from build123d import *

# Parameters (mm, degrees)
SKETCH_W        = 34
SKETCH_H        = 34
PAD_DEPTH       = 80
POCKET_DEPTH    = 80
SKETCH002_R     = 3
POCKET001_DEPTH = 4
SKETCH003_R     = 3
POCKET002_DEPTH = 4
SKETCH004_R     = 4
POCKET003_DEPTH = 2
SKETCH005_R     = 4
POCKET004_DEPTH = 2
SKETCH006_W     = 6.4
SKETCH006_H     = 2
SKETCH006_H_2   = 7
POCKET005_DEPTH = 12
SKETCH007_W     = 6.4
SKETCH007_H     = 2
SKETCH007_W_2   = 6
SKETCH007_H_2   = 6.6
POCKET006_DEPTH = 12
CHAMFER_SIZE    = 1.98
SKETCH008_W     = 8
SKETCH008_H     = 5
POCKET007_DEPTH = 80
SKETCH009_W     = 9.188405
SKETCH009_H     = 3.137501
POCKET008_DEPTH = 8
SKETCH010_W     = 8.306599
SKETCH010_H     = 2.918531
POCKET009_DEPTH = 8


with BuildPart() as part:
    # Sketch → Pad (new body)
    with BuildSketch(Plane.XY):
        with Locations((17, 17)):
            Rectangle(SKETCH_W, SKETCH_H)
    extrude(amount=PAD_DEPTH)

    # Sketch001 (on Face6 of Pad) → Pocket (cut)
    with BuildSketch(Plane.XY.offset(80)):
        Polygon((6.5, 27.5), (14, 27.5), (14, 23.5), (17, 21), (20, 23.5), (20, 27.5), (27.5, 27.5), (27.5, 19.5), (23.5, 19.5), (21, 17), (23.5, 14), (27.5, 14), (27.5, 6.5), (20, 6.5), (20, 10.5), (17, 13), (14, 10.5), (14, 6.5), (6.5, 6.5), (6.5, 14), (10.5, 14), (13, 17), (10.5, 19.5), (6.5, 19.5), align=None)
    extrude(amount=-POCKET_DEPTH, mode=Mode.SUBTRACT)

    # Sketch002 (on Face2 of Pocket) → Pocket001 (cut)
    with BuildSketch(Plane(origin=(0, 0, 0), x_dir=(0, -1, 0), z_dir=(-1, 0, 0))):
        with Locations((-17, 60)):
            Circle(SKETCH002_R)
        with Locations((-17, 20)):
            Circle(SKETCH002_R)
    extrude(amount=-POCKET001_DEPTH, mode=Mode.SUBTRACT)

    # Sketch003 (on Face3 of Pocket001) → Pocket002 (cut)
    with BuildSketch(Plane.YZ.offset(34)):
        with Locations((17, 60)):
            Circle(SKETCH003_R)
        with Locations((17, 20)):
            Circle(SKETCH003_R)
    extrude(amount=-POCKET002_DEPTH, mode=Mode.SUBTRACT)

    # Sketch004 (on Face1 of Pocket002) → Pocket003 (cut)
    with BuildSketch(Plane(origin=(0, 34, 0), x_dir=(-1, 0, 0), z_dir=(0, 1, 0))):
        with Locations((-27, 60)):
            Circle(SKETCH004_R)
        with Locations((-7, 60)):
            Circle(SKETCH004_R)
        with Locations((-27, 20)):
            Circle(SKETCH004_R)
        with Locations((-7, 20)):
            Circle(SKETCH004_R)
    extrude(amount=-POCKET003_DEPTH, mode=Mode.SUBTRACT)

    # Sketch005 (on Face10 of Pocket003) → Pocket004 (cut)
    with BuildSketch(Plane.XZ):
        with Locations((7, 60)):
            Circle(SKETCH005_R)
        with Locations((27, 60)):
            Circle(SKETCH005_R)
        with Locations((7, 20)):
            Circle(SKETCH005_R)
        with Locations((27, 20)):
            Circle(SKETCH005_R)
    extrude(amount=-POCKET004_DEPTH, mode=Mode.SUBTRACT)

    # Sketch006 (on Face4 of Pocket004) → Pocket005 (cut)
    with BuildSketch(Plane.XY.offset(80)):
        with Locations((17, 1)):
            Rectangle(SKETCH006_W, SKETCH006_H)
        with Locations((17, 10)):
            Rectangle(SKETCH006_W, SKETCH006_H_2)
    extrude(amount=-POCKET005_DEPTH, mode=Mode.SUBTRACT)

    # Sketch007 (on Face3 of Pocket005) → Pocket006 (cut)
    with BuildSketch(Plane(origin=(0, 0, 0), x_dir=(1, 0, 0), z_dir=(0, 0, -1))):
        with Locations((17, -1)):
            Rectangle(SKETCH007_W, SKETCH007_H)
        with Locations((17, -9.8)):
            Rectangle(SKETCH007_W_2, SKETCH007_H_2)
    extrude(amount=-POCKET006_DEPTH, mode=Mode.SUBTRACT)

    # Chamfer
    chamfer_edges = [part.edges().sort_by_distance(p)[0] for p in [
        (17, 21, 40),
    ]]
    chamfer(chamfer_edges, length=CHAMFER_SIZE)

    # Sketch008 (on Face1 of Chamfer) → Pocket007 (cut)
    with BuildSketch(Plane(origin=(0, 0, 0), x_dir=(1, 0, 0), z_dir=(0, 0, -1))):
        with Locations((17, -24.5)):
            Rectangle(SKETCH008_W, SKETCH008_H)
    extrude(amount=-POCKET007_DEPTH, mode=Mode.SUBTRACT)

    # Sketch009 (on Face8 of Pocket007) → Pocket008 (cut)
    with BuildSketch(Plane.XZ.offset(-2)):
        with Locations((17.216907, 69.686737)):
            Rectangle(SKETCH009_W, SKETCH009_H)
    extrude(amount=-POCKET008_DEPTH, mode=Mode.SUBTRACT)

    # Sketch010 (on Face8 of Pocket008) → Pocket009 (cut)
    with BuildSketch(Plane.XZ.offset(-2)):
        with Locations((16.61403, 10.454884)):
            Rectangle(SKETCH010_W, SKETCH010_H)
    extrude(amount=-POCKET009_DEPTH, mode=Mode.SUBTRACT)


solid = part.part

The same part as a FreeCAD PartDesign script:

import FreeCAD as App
import Part
import Sketcher
from FreeCAD import Vector
Q = App.Units.Quantity


def edges_at(feature, points):
    """Names of the edges that pass closest to the given points."""
    edges = feature.Shape.Edges
    near = lambda p: min(range(len(edges)), key=lambda i: edges[i].distToShape(Part.Vertex(*p))[0])
    return sorted({f"Edge{near(p) + 1}" for p in points})


def add_polygon(sketch, points):
    """Adds a closed chain of lines whose ends are joined by coincident constraints."""
    first, n = sketch.GeometryCount, len(points)
    for a, b in zip(points, points[1:] + points[:1]):
        sketch.addGeometry(Part.LineSegment(App.Vector(*a, 0), App.Vector(*b, 0)), False)
    for i in range(n):
        sketch.addConstraint(Sketcher.Constraint("Coincident", first + i, 2, first + (i + 1) % n, 1))

doc = App.newDocument("Part")
params = doc.addObject("Spreadsheet::Sheet", "Params")
for row, (alias, value) in enumerate([
    ("sketch1_width", "34 mm"),
    ("pad1_length", "80 mm"),
    ("sketch2_width", "4 mm"),
    ("sketch2_height", "8 mm"),
    ("sketch2_width2", "7.5 mm"),
    ("pocket1_length", "80 mm"),
    ("sketch3_diameter", "6 mm"),
    ("pocket2_length", "4 mm"),
    ("sketch4_diameter", "6 mm"),
    ("pocket3_length", "4 mm"),
    ("sketch5_diameter", "8 mm"),
    ("pocket4_length", "2 mm"),
    ("sketch6_diameter", "8 mm"),
    ("pocket5_length", "2 mm"),
    ("sketch7_height", "2 mm"),
    ("sketch7_height2", "7 mm"),
    ("sketch7_width", "6.4 mm"),
    ("pocket6_length", "12 mm"),
    ("sketch8_width", "6 mm"),
    ("sketch8_height", "2 mm"),
    ("sketch8_width2", "6.4 mm"),
    ("sketch8_height2", "6.6 mm"),
    ("pocket7_length", "12 mm"),
    ("chamfer_size", "1.98 mm"),
    ("sketch9_width", "8 mm"),
    ("sketch9_height", "5 mm"),
    ("pocket8_length", "80 mm"),
    ("pocket9_length", "8 mm"),
    ("pocket10_length", "8 mm"),
], start=1):
    params.set(f"A{row}", alias)
    params.set(f"B{row}", "=" + value)
    params.setAlias(f"B{row}", alias)

body = doc.addObject("PartDesign::Body", "Body")

sketch1 = doc.addObject("Sketcher::SketchObject", "Sketch")
body.addObject(sketch1)
sketch1.AttachmentSupport = (doc.XY_Plane, [""])
sketch1.MapMode = "FlatFace"
add_polygon(sketch1, [(0, 34), (0, 0), (34, 0), (34, 34)])
sketch1.addConstraint(Sketcher.Constraint("Vertical", 0))
sketch1.addConstraint(Sketcher.Constraint("Horizontal", 1))
sketch1.addConstraint(Sketcher.Constraint("Vertical", 2))
sketch1.addConstraint(Sketcher.Constraint("Horizontal", 3))
sketch1.addConstraint(Sketcher.Constraint("Coincident", 0, 2, -1, 1))
sketch1.addConstraint(Sketcher.Constraint("Equal", 3, 0))
sketch1.addConstraint(Sketcher.Constraint("DistanceX", 1, 1, 1, 2, Q("34 mm")))
sketch1.setExpression("Constraints[10]", "Params.sketch1_width")
pad1 = doc.addObject("PartDesign::Pad", "Pad")
body.addObject(pad1)
pad1.Profile = sketch1
pad1.setExpression("Length", "Params.pad1_length")

sketch2 = doc.addObject("Sketcher::SketchObject", "Sketch001")
body.addObject(sketch2)
sketch2.AttachmentSupport = (doc.XY_Plane, [""])
sketch2.MapMode = "FlatFace"
sketch2.AttachmentOffset = App.Placement(Vector(0, 0, 80), App.Rotation())
add_polygon(sketch2, [(14, 27.5), (6.5, 27.5), (6.5, 19.5), (10.5, 19.5), (13, 17), (10.5, 14), (6.5, 14), (6.5, 6.5), (14, 6.5), (14, 10.5), (17, 13), (20, 10.5), (20, 6.5), (27.5, 6.5), (27.5, 14), (23.5, 14), (21, 17), (23.5, 19.5), (27.5, 19.5), (27.5, 27.5), (20, 27.5), (20, 23.5), (17, 21), (14, 23.5)])
sketch2.addConstraint(Sketcher.Constraint("Horizontal", 0))
sketch2.addConstraint(Sketcher.Constraint("Vertical", 1))
sketch2.addConstraint(Sketcher.Constraint("Horizontal", 2))
sketch2.addConstraint(Sketcher.Constraint("Horizontal", 5))
sketch2.addConstraint(Sketcher.Constraint("Vertical", 6))
sketch2.addConstraint(Sketcher.Constraint("Horizontal", 7))
sketch2.addConstraint(Sketcher.Constraint("Vertical", 8))
sketch2.addConstraint(Sketcher.Constraint("Vertical", 11))
sketch2.addConstraint(Sketcher.Constraint("Horizontal", 12))
sketch2.addConstraint(Sketcher.Constraint("Vertical", 13))
sketch2.addConstraint(Sketcher.Constraint("Horizontal", 14))
sketch2.addConstraint(Sketcher.Constraint("Horizontal", 17))
sketch2.addConstraint(Sketcher.Constraint("Vertical", 18))
sketch2.addConstraint(Sketcher.Constraint("Horizontal", 19))
sketch2.addConstraint(Sketcher.Constraint("Vertical", 20))
sketch2.addConstraint(Sketcher.Constraint("Vertical", 23))
sketch2.addConstraint(Sketcher.Constraint("Perpendicular", 4, 10))
sketch2.addConstraint(Sketcher.Constraint("Perpendicular", 9, 15))
sketch2.addConstraint(Sketcher.Constraint("Perpendicular", 3, 16))
sketch2.addConstraint(Sketcher.Constraint("Perpendicular", 15, 21))
sketch2.addConstraint(Sketcher.Constraint("Parallel", 10, 22))
sketch2.addConstraint(Sketcher.Constraint("Horizontal", 8, 2, 10, 2))
sketch2.addConstraint(Sketcher.Constraint("Horizontal", 7, 2, 11, 2))
sketch2.addConstraint(Sketcher.Constraint("Horizontal", 5, 2, 13, 2))
sketch2.addConstraint(Sketcher.Constraint("Horizontal", 3, 2, 15, 2))
sketch2.addConstraint(Sketcher.Constraint("Horizontal", 2, 2, 16, 2))
sketch2.addConstraint(Sketcher.Constraint("Horizontal", 0, 2, 18, 2))
sketch2.addConstraint(Sketcher.Constraint("Horizontal", 20, 2, 22, 2))
sketch2.addConstraint(Sketcher.Constraint("Vertical", 2, 2, 4, 2))
sketch2.addConstraint(Sketcher.Constraint("Vertical", 1, 2, 5, 2))
sketch2.addConstraint(Sketcher.Constraint("Vertical", 14, 2, 16, 2))
sketch2.addConstraint(Sketcher.Constraint("Vertical", 13, 2, 17, 2))
sketch2.addConstraint(Sketcher.Constraint("Vertical", 11, 2, 19, 2))
sketch2.addConstraint(Sketcher.Constraint("Vertical", 9, 2, 21, 2))
sketch2.addConstraint(Sketcher.Constraint("Vertical", 8, 2, 22, 2))
sketch2.addConstraint(Sketcher.Constraint("Equal", 7, 12))
sketch2.addConstraint(Sketcher.Constraint("Equal", 5, 14))
sketch2.addConstraint(Sketcher.Constraint("Equal", 19, 6))
sketch2.addConstraint(Sketcher.Constraint("Equal", 17, 8))
sketch2.addConstraint(Sketcher.Constraint("Equal", 11, 20))
sketch2.addConstraint(Sketcher.Constraint("Equal", 4, 9))
sketch2.addConstraint(Sketcher.Constraint("DistanceX", 2, 1, 2, 2, Q("4 mm")))
sketch2.addConstraint(Sketcher.Constraint("DistanceY", 1, 2, 1, 1, Q("8 mm")))
sketch2.addConstraint(Sketcher.Constraint("DistanceX", 0, 2, 0, 1, Q("7.5 mm")))
sketch2.addConstraint(Sketcher.Constraint("DistanceX", -1, 1, 3, 2, Q("13 mm")))
sketch2.addConstraint(Sketcher.Constraint("DistanceY", -1, 1, 3, 2, Q("17 mm")))
sketch2.addConstraint(Sketcher.Constraint("DistanceY", -1, 1, 4, 2, Q("14 mm")))
sketch2.addConstraint(Sketcher.Constraint("DistanceX", -1, 1, 7, 2, Q("14 mm")))
sketch2.setExpression("Constraints[65]", "Params.sketch2_width")
sketch2.setExpression("Constraints[66]", "Params.sketch2_height")
sketch2.setExpression("Constraints[67]", "Params.sketch2_width2")
pocket1 = doc.addObject("PartDesign::Pocket", "Pocket")
body.addObject(pocket1)
pocket1.Profile = sketch2
pocket1.setExpression("Length", "Params.pocket1_length")

sketch3 = doc.addObject("Sketcher::SketchObject", "Sketch002")
body.addObject(sketch3)
sketch3.AttachmentSupport = (doc.YZ_Plane, [""])
sketch3.MapMode = "FlatFace"
sketch3.addGeometry(Part.Circle(Vector(17, 60, 0), Vector(0, 0, 1), 3), False)
sketch3.addGeometry(Part.Circle(Vector(17, 20, 0), Vector(0, 0, 1), 3), False)
sketch3.addConstraint(Sketcher.Constraint("Equal", 0, 1))
sketch3.addConstraint(Sketcher.Constraint("Vertical", 0, 3, 1, 3))
sketch3.addConstraint(Sketcher.Constraint("Diameter", 0, Q("6 mm")))
sketch3.addConstraint(Sketcher.Constraint("DistanceX", -1, 1, 0, 3, Q("17 mm")))
sketch3.addConstraint(Sketcher.Constraint("DistanceY", -1, 1, 0, 3, Q("60 mm")))
sketch3.addConstraint(Sketcher.Constraint("DistanceY", -1, 1, 1, 3, Q("20 mm")))
sketch3.setExpression("Constraints[2]", "Params.sketch3_diameter")
pocket2 = doc.addObject("PartDesign::Pocket", "Pocket001")
body.addObject(pocket2)
pocket2.Profile = sketch3
pocket2.setExpression("Length", "Params.pocket2_length")
pocket2.Reversed = True

sketch4 = doc.addObject("Sketcher::SketchObject", "Sketch003")
body.addObject(sketch4)
sketch4.AttachmentSupport = (doc.YZ_Plane, [""])
sketch4.MapMode = "FlatFace"
sketch4.AttachmentOffset = App.Placement(Vector(0, 0, 34), App.Rotation())
sketch4.addGeometry(Part.Circle(Vector(17, 60, 0), Vector(0, 0, 1), 3), False)
sketch4.addGeometry(Part.Circle(Vector(17, 20, 0), Vector(0, 0, 1), 3), False)
sketch4.addConstraint(Sketcher.Constraint("Equal", 0, 1))
sketch4.addConstraint(Sketcher.Constraint("Vertical", 0, 3, 1, 3))
sketch4.addConstraint(Sketcher.Constraint("Diameter", 0, Q("6 mm")))
sketch4.addConstraint(Sketcher.Constraint("DistanceX", -1, 1, 0, 3, Q("17 mm")))
sketch4.addConstraint(Sketcher.Constraint("DistanceY", -1, 1, 0, 3, Q("60 mm")))
sketch4.addConstraint(Sketcher.Constraint("DistanceY", -1, 1, 1, 3, Q("20 mm")))
sketch4.setExpression("Constraints[2]", "Params.sketch4_diameter")
pocket3 = doc.addObject("PartDesign::Pocket", "Pocket002")
body.addObject(pocket3)
pocket3.Profile = sketch4
pocket3.setExpression("Length", "Params.pocket3_length")

sketch5 = doc.addObject("Sketcher::SketchObject", "Sketch004")
body.addObject(sketch5)
sketch5.AttachmentSupport = (doc.XZ_Plane, [""])
sketch5.MapMode = "FlatFace"
sketch5.AttachmentOffset = App.Placement(Vector(0, 0, -34), App.Rotation())
sketch5.addGeometry(Part.Circle(Vector(27, 60, 0), Vector(0, 0, 1), 4), False)
sketch5.addGeometry(Part.Circle(Vector(7, 60, 0), Vector(0, 0, 1), 4), False)
sketch5.addGeometry(Part.Circle(Vector(27, 20, 0), Vector(0, 0, 1), 4), False)
sketch5.addGeometry(Part.Circle(Vector(7, 20, 0), Vector(0, 0, 1), 4), False)
sketch5.addConstraint(Sketcher.Constraint("Equal", 0, 1))
sketch5.addConstraint(Sketcher.Constraint("Equal", 1, 2))
sketch5.addConstraint(Sketcher.Constraint("Equal", 2, 3))
sketch5.addConstraint(Sketcher.Constraint("Horizontal", 0, 3, 1, 3))
sketch5.addConstraint(Sketcher.Constraint("Horizontal", 2, 3, 3, 3))
sketch5.addConstraint(Sketcher.Constraint("Vertical", 0, 3, 2, 3))
sketch5.addConstraint(Sketcher.Constraint("Vertical", 1, 3, 3, 3))
sketch5.addConstraint(Sketcher.Constraint("Diameter", 0, Q("8 mm")))
sketch5.addConstraint(Sketcher.Constraint("DistanceX", -1, 1, 0, 3, Q("27 mm")))
sketch5.addConstraint(Sketcher.Constraint("DistanceY", -1, 1, 0, 3, Q("60 mm")))
sketch5.addConstraint(Sketcher.Constraint("DistanceX", -1, 1, 1, 3, Q("7 mm")))
sketch5.addConstraint(Sketcher.Constraint("DistanceY", -1, 1, 2, 3, Q("20 mm")))
sketch5.setExpression("Constraints[7]", "Params.sketch5_diameter")
pocket4 = doc.addObject("PartDesign::Pocket", "Pocket003")
body.addObject(pocket4)
pocket4.Profile = sketch5
pocket4.setExpression("Length", "Params.pocket4_length")
pocket4.Reversed = True

sketch6 = doc.addObject("Sketcher::SketchObject", "Sketch005")
body.addObject(sketch6)
sketch6.AttachmentSupport = (doc.XZ_Plane, [""])
sketch6.MapMode = "FlatFace"
sketch6.addGeometry(Part.Circle(Vector(7, 60, 0), Vector(0, 0, 1), 4), False)
sketch6.addGeometry(Part.Circle(Vector(27, 60, 0), Vector(0, 0, 1), 4), False)
sketch6.addGeometry(Part.Circle(Vector(7, 20, 0), Vector(0, 0, 1), 4), False)
sketch6.addGeometry(Part.Circle(Vector(27, 20, 0), Vector(0, 0, 1), 4), False)
sketch6.addConstraint(Sketcher.Constraint("Equal", 0, 1))
sketch6.addConstraint(Sketcher.Constraint("Equal", 1, 2))
sketch6.addConstraint(Sketcher.Constraint("Equal", 2, 3))
sketch6.addConstraint(Sketcher.Constraint("Horizontal", 0, 3, 1, 3))
sketch6.addConstraint(Sketcher.Constraint("Horizontal", 2, 3, 3, 3))
sketch6.addConstraint(Sketcher.Constraint("Vertical", 0, 3, 2, 3))
sketch6.addConstraint(Sketcher.Constraint("Vertical", 1, 3, 3, 3))
sketch6.addConstraint(Sketcher.Constraint("Diameter", 0, Q("8 mm")))
sketch6.addConstraint(Sketcher.Constraint("DistanceX", -1, 1, 0, 3, Q("7 mm")))
sketch6.addConstraint(Sketcher.Constraint("DistanceY", -1, 1, 0, 3, Q("60 mm")))
sketch6.addConstraint(Sketcher.Constraint("DistanceX", -1, 1, 1, 3, Q("27 mm")))
sketch6.addConstraint(Sketcher.Constraint("DistanceY", -1, 1, 2, 3, Q("20 mm")))
sketch6.setExpression("Constraints[7]", "Params.sketch6_diameter")
pocket5 = doc.addObject("PartDesign::Pocket", "Pocket004")
body.addObject(pocket5)
pocket5.Profile = sketch6
pocket5.setExpression("Length", "Params.pocket5_length")

sketch7 = doc.addObject("Sketcher::SketchObject", "Sketch006")
body.addObject(sketch7)
sketch7.AttachmentSupport = (doc.XY_Plane, [""])
sketch7.MapMode = "FlatFace"
sketch7.AttachmentOffset = App.Placement(Vector(0, 0, 80), App.Rotation())
add_polygon(sketch7, [(13.8, 2), (13.8, 0), (20.2, 0), (20.2, 2)])
add_polygon(sketch7, [(13.8, 13.5), (13.8, 6.5), (20.2, 6.5), (20.2, 13.5)])
sketch7.addConstraint(Sketcher.Constraint("Vertical", 0))
sketch7.addConstraint(Sketcher.Constraint("Horizontal", 1))
sketch7.addConstraint(Sketcher.Constraint("Vertical", 2))
sketch7.addConstraint(Sketcher.Constraint("Horizontal", 3))
sketch7.addConstraint(Sketcher.Constraint("Vertical", 4))
sketch7.addConstraint(Sketcher.Constraint("Horizontal", 5))
sketch7.addConstraint(Sketcher.Constraint("Vertical", 6))
sketch7.addConstraint(Sketcher.Constraint("Horizontal", 7))
sketch7.addConstraint(Sketcher.Constraint("PointOnObject", 0, 2, -1))
sketch7.addConstraint(Sketcher.Constraint("Vertical", 3, 2, 4, 2))
sketch7.addConstraint(Sketcher.Constraint("Vertical", 2, 2, 5, 2))
sketch7.addConstraint(Sketcher.Constraint("DistanceY", 0, 2, 0, 1, Q("2 mm")))
sketch7.addConstraint(Sketcher.Constraint("DistanceY", 4, 2, 4, 1, Q("7 mm")))
sketch7.addConstraint(Sketcher.Constraint("DistanceX", 1, 1, 1, 2, Q("6.4 mm")))
sketch7.addConstraint(Sketcher.Constraint("DistanceX", -1, 1, 0, 2, Q("13.8 mm")))
sketch7.addConstraint(Sketcher.Constraint("DistanceY", -1, 1, 4, 2, Q("6.5 mm")))
sketch7.setExpression("Constraints[19]", "Params.sketch7_height")
sketch7.setExpression("Constraints[20]", "Params.sketch7_height2")
sketch7.setExpression("Constraints[21]", "Params.sketch7_width")
pocket6 = doc.addObject("PartDesign::Pocket", "Pocket005")
body.addObject(pocket6)
pocket6.Profile = sketch7
pocket6.setExpression("Length", "Params.pocket6_length")

sketch8 = doc.addObject("Sketcher::SketchObject", "Sketch007")
body.addObject(sketch8)
sketch8.AttachmentSupport = (doc.XY_Plane, [""])
sketch8.MapMode = "FlatFace"
add_polygon(sketch8, [(13.8, 0), (13.8, 2), (20.2, 2), (20.2, 0)])
add_polygon(sketch8, [(14, 6.5), (14, 13.1), (20, 13.1), (20, 6.5)])
sketch8.addConstraint(Sketcher.Constraint("Vertical", 0))
sketch8.addConstraint(Sketcher.Constraint("Horizontal", 1))
sketch8.addConstraint(Sketcher.Constraint("Vertical", 2))
sketch8.addConstraint(Sketcher.Constraint("Horizontal", 3))
sketch8.addConstraint(Sketcher.Constraint("Vertical", 4))
sketch8.addConstraint(Sketcher.Constraint("Horizontal", 5))
sketch8.addConstraint(Sketcher.Constraint("Vertical", 6))
sketch8.addConstraint(Sketcher.Constraint("Horizontal", 7))
sketch8.addConstraint(Sketcher.Constraint("PointOnObject", 2, 2, -1))
sketch8.addConstraint(Sketcher.Constraint("DistanceX", 5, 1, 5, 2, Q("6 mm")))
sketch8.addConstraint(Sketcher.Constraint("DistanceY", 0, 1, 0, 2, Q("2 mm")))
sketch8.addConstraint(Sketcher.Constraint("DistanceX", 1, 1, 1, 2, Q("6.4 mm")))
sketch8.addConstraint(Sketcher.Constraint("DistanceY", 4, 1, 4, 2, Q("6.6 mm")))
sketch8.addConstraint(Sketcher.Constraint("DistanceX", -1, 1, 4, 2, Q("14 mm")))
sketch8.addConstraint(Sketcher.Constraint("DistanceX", -1, 1, 0, 2, Q("13.8 mm")))
sketch8.addConstraint(Sketcher.Constraint("DistanceY", -1, 1, 4, 2, Q("13.1 mm")))
sketch8.setExpression("Constraints[17]", "Params.sketch8_width")
sketch8.setExpression("Constraints[18]", "Params.sketch8_height")
sketch8.setExpression("Constraints[19]", "Params.sketch8_width2")
sketch8.setExpression("Constraints[20]", "Params.sketch8_height2")
pocket7 = doc.addObject("PartDesign::Pocket", "Pocket006")
body.addObject(pocket7)
pocket7.Profile = sketch8
pocket7.setExpression("Length", "Params.pocket7_length")
pocket7.Reversed = True
doc.recompute()

chamfer = doc.addObject("PartDesign::Chamfer", "Chamfer")
body.addObject(chamfer)
chamfer.Base = (pocket7, edges_at(pocket7, [(17, 21, 40)]))
chamfer.setExpression("Size", "Params.chamfer_size")

sketch9 = doc.addObject("Sketcher::SketchObject", "Sketch008")
body.addObject(sketch9)
sketch9.AttachmentSupport = (doc.XY_Plane, [""])
sketch9.MapMode = "FlatFace"
add_polygon(sketch9, [(13, 22), (13, 27), (21, 27), (21, 22)])
sketch9.addConstraint(Sketcher.Constraint("Vertical", 0))
sketch9.addConstraint(Sketcher.Constraint("Horizontal", 1))
sketch9.addConstraint(Sketcher.Constraint("Vertical", 2))
sketch9.addConstraint(Sketcher.Constraint("Horizontal", 3))
sketch9.addConstraint(Sketcher.Constraint("DistanceX", 1, 1, 1, 2, Q("8 mm")))
sketch9.addConstraint(Sketcher.Constraint("DistanceY", 0, 1, 0, 2, Q("5 mm")))
sketch9.addConstraint(Sketcher.Constraint("DistanceX", -1, 1, 0, 2, Q("13 mm")))
sketch9.addConstraint(Sketcher.Constraint("DistanceY", -1, 1, 0, 2, Q("27 mm")))
sketch9.setExpression("Constraints[8]", "Params.sketch9_width")
sketch9.setExpression("Constraints[9]", "Params.sketch9_height")
pocket8 = doc.addObject("PartDesign::Pocket", "Pocket007")
body.addObject(pocket8)
pocket8.Profile = sketch9
pocket8.setExpression("Length", "Params.pocket8_length")
pocket8.Reversed = True

sketch10 = doc.addObject("Sketcher::SketchObject", "Sketch009")
body.addObject(sketch10)
sketch10.AttachmentSupport = (doc.XZ_Plane, [""])
sketch10.MapMode = "FlatFace"
sketch10.AttachmentOffset = App.Placement(Vector(0, 0, -2), App.Rotation())
add_polygon(sketch10, [(12.6, 71.3), (12.6, 68.1), (21.8, 68.1), (21.8, 71.3)])
sketch10.addConstraint(Sketcher.Constraint("Vertical", 0))
sketch10.addConstraint(Sketcher.Constraint("Horizontal", 1))
sketch10.addConstraint(Sketcher.Constraint("Vertical", 2))
sketch10.addConstraint(Sketcher.Constraint("Horizontal", 3))
sketch10.addConstraint(Sketcher.Constraint("DistanceY", 0, 2, 0, 1, Q("3.137501 mm")))
sketch10.addConstraint(Sketcher.Constraint("DistanceX", 1, 1, 1, 2, Q("9.188405 mm")))
sketch10.addConstraint(Sketcher.Constraint("DistanceX", -1, 1, 1, 2, Q("21.81111 mm")))
sketch10.addConstraint(Sketcher.Constraint("DistanceY", -1, 1, 0, 2, Q("68.117987 mm")))
pocket9 = doc.addObject("PartDesign::Pocket", "Pocket008")
body.addObject(pocket9)
pocket9.Profile = sketch10
pocket9.setExpression("Length", "Params.pocket9_length")

sketch11 = doc.addObject("Sketcher::SketchObject", "Sketch010")
body.addObject(sketch11)
sketch11.AttachmentSupport = (doc.XZ_Plane, [""])
sketch11.MapMode = "FlatFace"
sketch11.AttachmentOffset = App.Placement(Vector(0, 0, -2), App.Rotation())
add_polygon(sketch11, [(12.5, 11.9), (12.5, 9), (20.8, 9), (20.8, 11.9)])
sketch11.addConstraint(Sketcher.Constraint("Vertical", 0))
sketch11.addConstraint(Sketcher.Constraint("Horizontal", 1))
sketch11.addConstraint(Sketcher.Constraint("Vertical", 2))
sketch11.addConstraint(Sketcher.Constraint("Horizontal", 3))
sketch11.addConstraint(Sketcher.Constraint("DistanceX", 1, 1, 1, 2, Q("8.306599 mm")))
sketch11.addConstraint(Sketcher.Constraint("DistanceY", 0, 2, 0, 1, Q("2.918531 mm")))
sketch11.addConstraint(Sketcher.Constraint("DistanceX", -1, 1, 0, 2, Q("12.460731 mm")))
sketch11.addConstraint(Sketcher.Constraint("DistanceY", -1, 1, 0, 2, Q("8.995619 mm")))
pocket10 = doc.addObject("PartDesign::Pocket", "Pocket009")
body.addObject(pocket10)
pocket10.Profile = sketch11
pocket10.setExpression("Length", "Params.pocket10_length")

doc.recompute()
